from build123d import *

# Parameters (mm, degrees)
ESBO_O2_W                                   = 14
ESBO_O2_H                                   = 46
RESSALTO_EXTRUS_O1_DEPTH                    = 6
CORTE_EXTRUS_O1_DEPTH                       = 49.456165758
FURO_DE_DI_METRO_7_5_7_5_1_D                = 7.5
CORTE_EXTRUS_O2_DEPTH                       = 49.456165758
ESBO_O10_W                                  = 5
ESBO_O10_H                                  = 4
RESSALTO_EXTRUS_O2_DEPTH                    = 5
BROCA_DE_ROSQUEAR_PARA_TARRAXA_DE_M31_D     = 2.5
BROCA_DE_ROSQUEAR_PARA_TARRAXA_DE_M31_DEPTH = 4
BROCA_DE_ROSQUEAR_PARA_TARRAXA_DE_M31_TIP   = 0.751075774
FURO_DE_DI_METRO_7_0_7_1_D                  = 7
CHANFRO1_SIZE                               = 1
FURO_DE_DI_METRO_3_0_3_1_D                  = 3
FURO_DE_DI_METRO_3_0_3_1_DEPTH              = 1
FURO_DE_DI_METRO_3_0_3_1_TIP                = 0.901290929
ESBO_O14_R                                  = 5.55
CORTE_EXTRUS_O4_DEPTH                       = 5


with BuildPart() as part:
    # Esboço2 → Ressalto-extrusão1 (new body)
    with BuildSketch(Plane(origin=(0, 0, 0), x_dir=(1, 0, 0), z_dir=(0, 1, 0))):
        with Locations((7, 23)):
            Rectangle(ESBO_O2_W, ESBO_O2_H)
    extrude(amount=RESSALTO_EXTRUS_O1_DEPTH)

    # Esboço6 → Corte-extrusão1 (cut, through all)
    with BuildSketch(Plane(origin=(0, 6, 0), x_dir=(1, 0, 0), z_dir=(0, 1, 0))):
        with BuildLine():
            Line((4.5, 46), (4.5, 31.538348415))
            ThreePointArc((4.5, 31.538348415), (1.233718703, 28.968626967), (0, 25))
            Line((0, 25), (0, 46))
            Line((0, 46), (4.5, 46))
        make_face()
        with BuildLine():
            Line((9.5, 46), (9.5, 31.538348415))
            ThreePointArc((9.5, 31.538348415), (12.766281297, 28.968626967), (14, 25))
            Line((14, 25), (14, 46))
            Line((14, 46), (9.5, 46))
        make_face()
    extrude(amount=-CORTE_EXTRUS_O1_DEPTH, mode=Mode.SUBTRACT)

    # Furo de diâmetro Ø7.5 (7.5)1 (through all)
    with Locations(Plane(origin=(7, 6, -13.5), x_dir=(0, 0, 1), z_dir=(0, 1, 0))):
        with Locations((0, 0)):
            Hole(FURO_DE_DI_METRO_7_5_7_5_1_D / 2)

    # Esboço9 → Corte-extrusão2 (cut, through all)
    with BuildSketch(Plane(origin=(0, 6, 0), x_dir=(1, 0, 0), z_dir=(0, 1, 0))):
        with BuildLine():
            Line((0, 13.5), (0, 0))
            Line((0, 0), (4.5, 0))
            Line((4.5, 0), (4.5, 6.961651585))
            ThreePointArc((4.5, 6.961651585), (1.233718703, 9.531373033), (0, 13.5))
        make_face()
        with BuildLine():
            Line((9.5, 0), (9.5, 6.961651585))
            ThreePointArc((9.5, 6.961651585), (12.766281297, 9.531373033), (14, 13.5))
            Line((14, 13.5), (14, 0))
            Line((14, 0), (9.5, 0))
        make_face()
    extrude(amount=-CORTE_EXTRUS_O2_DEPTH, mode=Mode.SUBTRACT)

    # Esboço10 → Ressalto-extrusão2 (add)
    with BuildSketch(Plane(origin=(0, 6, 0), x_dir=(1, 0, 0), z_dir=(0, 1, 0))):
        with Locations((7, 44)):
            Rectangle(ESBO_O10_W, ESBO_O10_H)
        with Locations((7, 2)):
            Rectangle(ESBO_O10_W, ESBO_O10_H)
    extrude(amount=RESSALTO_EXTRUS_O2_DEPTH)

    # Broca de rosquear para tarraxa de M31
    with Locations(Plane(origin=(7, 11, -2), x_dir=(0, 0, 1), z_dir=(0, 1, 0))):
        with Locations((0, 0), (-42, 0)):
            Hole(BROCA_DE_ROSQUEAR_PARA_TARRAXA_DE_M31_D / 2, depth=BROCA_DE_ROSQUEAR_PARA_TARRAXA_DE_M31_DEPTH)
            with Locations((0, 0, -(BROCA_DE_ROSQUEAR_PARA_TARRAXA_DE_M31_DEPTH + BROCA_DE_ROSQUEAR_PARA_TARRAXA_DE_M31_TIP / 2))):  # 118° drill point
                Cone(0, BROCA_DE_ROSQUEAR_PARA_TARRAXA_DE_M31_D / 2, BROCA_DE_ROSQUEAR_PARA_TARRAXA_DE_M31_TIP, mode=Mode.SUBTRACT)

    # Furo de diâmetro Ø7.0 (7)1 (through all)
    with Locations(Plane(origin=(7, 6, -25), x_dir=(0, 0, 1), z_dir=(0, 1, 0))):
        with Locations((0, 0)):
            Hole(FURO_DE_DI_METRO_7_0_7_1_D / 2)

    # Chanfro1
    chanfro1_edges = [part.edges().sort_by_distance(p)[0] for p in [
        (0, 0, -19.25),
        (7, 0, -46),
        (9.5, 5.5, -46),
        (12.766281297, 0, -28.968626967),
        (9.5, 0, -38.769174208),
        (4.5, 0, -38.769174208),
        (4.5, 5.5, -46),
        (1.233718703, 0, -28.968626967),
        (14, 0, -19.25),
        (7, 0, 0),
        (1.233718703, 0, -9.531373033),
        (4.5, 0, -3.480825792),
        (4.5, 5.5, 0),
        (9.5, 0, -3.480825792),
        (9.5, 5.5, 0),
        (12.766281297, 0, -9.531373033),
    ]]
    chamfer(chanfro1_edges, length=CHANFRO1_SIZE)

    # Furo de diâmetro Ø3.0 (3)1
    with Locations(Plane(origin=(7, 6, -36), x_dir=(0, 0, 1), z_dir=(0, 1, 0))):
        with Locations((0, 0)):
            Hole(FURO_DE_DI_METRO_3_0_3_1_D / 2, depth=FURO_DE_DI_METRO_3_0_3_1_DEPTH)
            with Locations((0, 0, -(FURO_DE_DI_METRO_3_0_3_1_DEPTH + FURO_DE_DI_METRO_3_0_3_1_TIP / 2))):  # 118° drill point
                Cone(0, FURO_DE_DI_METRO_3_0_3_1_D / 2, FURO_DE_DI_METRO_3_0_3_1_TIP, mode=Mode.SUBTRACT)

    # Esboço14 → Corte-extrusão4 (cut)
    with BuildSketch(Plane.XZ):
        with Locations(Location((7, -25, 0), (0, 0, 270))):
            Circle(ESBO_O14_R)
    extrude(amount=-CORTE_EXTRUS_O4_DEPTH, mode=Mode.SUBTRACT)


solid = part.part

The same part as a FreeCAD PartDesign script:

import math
import FreeCAD as App
import Part
import Sketcher
from FreeCAD import Vector
Q = App.Units.Quantity


def edges_at(feature, points):
    """Names of the edges that pass closest to the given points."""
    edges = feature.Shape.Edges
    near = lambda p: min(range(len(edges)), key=lambda i: edges[i].distToShape(Part.Vertex(*p))[0])
    return sorted({f"Edge{near(p) + 1}" for p in points})


def add_polygon(sketch, points):
    """Adds a closed chain of lines whose ends are joined by coincident constraints."""
    first, n = sketch.GeometryCount, len(points)
    for a, b in zip(points, points[1:] + points[:1]):
        sketch.addGeometry(Part.LineSegment(App.Vector(*a, 0), App.Vector(*b, 0)), False)
    for i in range(n):
        sketch.addConstraint(Sketcher.Constraint("Coincident", first + i, 2, first + (i + 1) % n, 1))

doc = App.newDocument("Part")
body = doc.addObject("PartDesign::Body", "Body")

# Sketch on XZ plane
sketch1 = body.newObject("Sketcher::SketchObject", "Sketch")
sketch1.AttachmentSupport = (doc.getObject("XZ_Plane"), [""])
sketch1.MapMode = "FlatFace"
add_polygon(sketch1, [(0, -46), (0, 0), (14, 0), (14, -46)])  # lines 0-3
sketch1.addConstraint([
    Sketcher.Constraint("Vertical", 0),
    Sketcher.Constraint("Horizontal", 1),
    Sketcher.Constraint("Vertical", 2),
    Sketcher.Constraint("Horizontal", 3),
    Sketcher.Constraint("Coincident", 0, 2, -1, 1),
    Sketcher.Constraint("DistanceX", 1, 1, 1, 2, Q("14 mm")),
    Sketcher.Constraint("DistanceY", 0, 1, 0, 2, Q("46 mm")),
])
pad1 = body.newObject("PartDesign::Pad", "Pad")
pad1.Profile = sketch1
pad1.Length = 6
pad1.Reversed = True

# Sketch on XZ plane
sketch2 = body.newObject("Sketcher::SketchObject", "Sketch001")
sketch2.AttachmentSupport = (doc.getObject("XZ_Plane"), [""])
sketch2.MapMode = "FlatFace"
sketch2.AttachmentOffset = App.Placement(Vector(0, 0, -6), App.Rotation())
sketch2.addGeometry([
    Part.LineSegment(Vector(4.5, -31.5, 0), Vector(4.5, -46, 0)),  # 0
    Part.LineSegment(Vector(4.5, -46, 0), Vector(0, -46, 0)),  # 1
    Part.LineSegment(Vector(0, -46, 0), Vector(0, -25, 0)),  # 2
    Part.ArcOfCircle(Part.Circle(Vector(7, -25, 0), Vector(0, 0, 1), 7), math.radians(180), math.radians(249)),  # 3
    Part.LineSegment(Vector(9.5, -46, 0), Vector(9.5, -31.5, 0)),  # 4
    Part.ArcOfCircle(Part.Circle(Vector(7, -25, 0), Vector(0, 0, 1), 7), math.radians(-69), math.radians(0)),  # 5
    Part.LineSegment(Vector(14, -25, 0), Vector(14, -46, 0)),  # 6
    Part.LineSegment(Vector(14, -46, 0), Vector(9.5, -46, 0)),  # 7
], False)
sketch2.addConstraint([
    Sketcher.Constraint("Coincident", 0, 2, 1, 1),
    Sketcher.Constraint("Coincident", 1, 2, 2, 1),
    Sketcher.Constraint("Tangent", 2, 2, 3, 1),
    Sketcher.Constraint("Coincident", 3, 2, 0, 1),
    Sketcher.Constraint("Coincident", 4, 2, 5, 1),
    Sketcher.Constraint("Tangent", 5, 2, 6, 1),
    Sketcher.Constraint("Coincident", 6, 2, 7, 1),
    Sketcher.Constraint("Coincident", 7, 2, 4, 1),
    Sketcher.Constraint("Vertical", 0),
    Sketcher.Constraint("Horizontal", 1),
    Sketcher.Constraint("Vertical", 2),
    Sketcher.Constraint("Vertical", 4),
    Sketcher.Constraint("Vertical", 6),
    Sketcher.Constraint("Horizontal", 7),
    Sketcher.Constraint("Coincident", 5, 3, 3, 3),
    Sketcher.Constraint("Equal", 3, 5),
    Sketcher.Constraint("PointOnObject", 1, 2, -2),
    Sketcher.Constraint("Horizontal", 3, 2, 4, 2),
    Sketcher.Constraint("Horizontal", 1, 2, 6, 2),
    Sketcher.Constraint("Radius", 3, Q("7 mm")),
    Sketcher.Constraint("DistanceY", 2, 1, 2, 2, Q("21 mm")),
    Sketcher.Constraint("DistanceX", 1, 2, 1, 1, Q("4.5 mm")),
    Sketcher.Constraint("DistanceY", 3, 3, -1, 1, Q("25 mm")),
])
pocket1 = body.newObject("PartDesign::Pocket", "Pocket")
pocket1.Profile = sketch2
pocket1.Type = "ThroughAll"
pocket1.Reversed = True

# Sketch on XZ plane
sketch3 = body.newObject("Sketcher::SketchObject", "Sketch002")
sketch3.AttachmentSupport = (doc.getObject("XZ_Plane"), [""])
sketch3.MapMode = "FlatFace"
sketch3.AttachmentOffset = App.Placement(Vector(0, 0, -6), App.Rotation())
sketch3.addGeometry(Part.Circle(Vector(7, -13.5, 0), Vector(0, 0, 1), 3.8), False)
sketch3.addConstraint([
    Sketcher.Constraint("Diameter", 0, Q("7.5 mm")),
    Sketcher.Constraint("DistanceX", -1, 1, 0, 3, Q("7 mm")),
    Sketcher.Constraint("DistanceY", 0, 3, -1, 1, Q("13.5 mm")),
])
doc.recompute()
hole = body.newObject("PartDesign::Hole", "Hole")
hole.Profile = sketch3
hole.ThreadType = "None"
hole.Diameter = 7.5
hole.DepthType = "ThroughAll"
hole.Reversed = True

# Sketch on XZ plane
sketch4 = body.newObject("Sketcher::SketchObject", "Sketch003")
sketch4.AttachmentSupport = (doc.getObject("XZ_Plane"), [""])
sketch4.MapMode = "FlatFace"
sketch4.AttachmentOffset = App.Placement(Vector(0, 0, -6), App.Rotation())
sketch4.addGeometry([
    Part.LineSegment(Vector(0, -13.5, 0), Vector(0, 0, 0)),  # 0
    Part.LineSegment(Vector(0, 0, 0), Vector(4.5, 0, 0)),  # 1
    Part.LineSegment(Vector(4.5, 0, 0), Vector(4.5, -7, 0)),  # 2
    Part.ArcOfCircle(Part.Circle(Vector(7, -13.5, 0), Vector(0, 0, 1), 7), math.radians(111), math.radians(180)),  # 3
    Part.LineSegment(Vector(9.5, -7, 0), Vector(9.5, 0, 0)),  # 4
    Part.LineSegment(Vector(9.5, 0, 0), Vector(14, 0, 0)),  # 5
    Part.LineSegment(Vector(14, 0, 0), Vector(14, -13.5, 0)),  # 6
    Part.ArcOfCircle(Part.Circle(Vector(7, -13.5, 0), Vector(0, 0, 1), 7), math.radians(0), math.radians(69)),  # 7
], False)
sketch4.addConstraint([
    Sketcher.Constraint("Coincident", 0, 2, 1, 1),
    Sketcher.Constraint("Coincident", 1, 2, 2, 1),
    Sketcher.Constraint("Coincident", 2, 2, 3, 1),
    Sketcher.Constraint("Tangent", 3, 2, 0, 1),
    Sketcher.Constraint("Coincident", 4, 2, 5, 1),
    Sketcher.Constraint("Coincident", 5, 2, 6, 1),
    Sketcher.Constraint("Tangent", 6, 2, 7, 1),
    Sketcher.Constraint("Coincident", 7, 2, 4, 1),
    Sketcher.Constraint("Vertical", 0),
    Sketcher.Constraint("Horizontal", 1),
    Sketcher.Constraint("Vertical", 2),
    Sketcher.Constraint("Vertical", 4),
    Sketcher.Constraint("Horizontal", 5),
    Sketcher.Constraint("Vertical", 6),
    Sketcher.Constraint("Coincident", 0, 2, -1, 1),
    Sketcher.Constraint("Coincident", 7, 3, 3, 3),
    Sketcher.Constraint("Equal", 3, 7),
    Sketcher.Constraint("PointOnObject", 4, 2, -1),
    Sketcher.Constraint("Horizontal", 2, 2, 7, 2),
    Sketcher.Constraint("Radius", 3, Q("7 mm")),
    Sketcher.Constraint("DistanceX", 1, 1, 1, 2, Q("4.5 mm")),
    Sketcher.Constraint("DistanceY", 0, 1, 0, 2, Q("13.5 mm")),
])
pocket2 = body.newObject("PartDesign::Pocket", "Pocket001")
pocket2.Profile = sketch4
pocket2.Type = "ThroughAll"
pocket2.Reversed = True

# Sketch on XZ plane
sketch5 = body.newObject("Sketcher::SketchObject", "Sketch004")
sketch5.AttachmentSupport = (doc.getObject("XZ_Plane"), [""])
sketch5.MapMode = "FlatFace"
sketch5.AttachmentOffset = App.Placement(Vector(0, 0, -6), App.Rotation())
add_polygon(sketch5, [(4.5, -46), (4.5, -42), (9.5, -42), (9.5, -46)])  # lines 0-3
add_polygon(sketch5, [(4.5, -4), (4.5, 0), (9.5, 0), (9.5, -4)])  # lines 4-7
sketch5.addConstraint([
    Sketcher.Constraint("Vertical", 0),
    Sketcher.Constraint("Horizontal", 1),
    Sketcher.Constraint("Vertical", 2),
    Sketcher.Constraint("Horizontal", 3),
    Sketcher.Constraint("Vertical", 4),
    Sketcher.Constraint("Horizontal", 5),
    Sketcher.Constraint("Vertical", 6),
    Sketcher.Constraint("Horizontal", 7),
    Sketcher.Constraint("PointOnObject", 4, 2, -1),
    Sketcher.Constraint("Vertical", 3, 2, 4, 2),
    Sketcher.Constraint("Vertical", 2, 2, 5, 2),
    Sketcher.Constraint("Equal", 2, 4),
    Sketcher.Constraint("DistanceX", 1, 1, 1, 2, Q("5 mm")),
    Sketcher.Constraint("DistanceY", 0, 1, 0, 2, Q("4 mm")),
    Sketcher.Constraint("DistanceY", 0, 2, -1, 1, Q("42 mm")),
    Sketcher.Constraint("DistanceX", -1, 1, 0, 2, Q("4.5 mm")),
])
pad2 = body.newObject("PartDesign::Pad", "Pad001")
pad2.Profile = sketch5
pad2.Length = 5
pad2.Reversed = True

# Sketch on XZ plane
sketch6 = body.newObject("Sketcher::SketchObject", "Sketch005")
sketch6.AttachmentSupport = (doc.getObject("XZ_Plane"), [""])
sketch6.MapMode = "FlatFace"
sketch6.AttachmentOffset = App.Placement(Vector(0, 0, -11), App.Rotation())
sketch6.addGeometry([
    Part.Circle(Vector(7, -2, 0), Vector(0, 0, 1), 1.2),
    Part.Circle(Vector(7, -44, 0), Vector(0, 0, 1), 1.2),
], False)
sketch6.addConstraint([
    Sketcher.Constraint("Equal", 0, 1),
    Sketcher.Constraint("Vertical", 0, 3, 1, 3),
    Sketcher.Constraint("Diameter", 0, Q("2.5 mm")),
    Sketcher.Constraint("DistanceX", -1, 1, 0, 3, Q("7 mm")),
    Sketcher.Constraint("DistanceY", 0, 3, -1, 1, Q("2 mm")),
    Sketcher.Constraint("DistanceY", 1, 3, -1, 1, Q("44 mm")),
])
doc.recompute()
hole2 = body.newObject("PartDesign::Hole", "Hole001")
hole2.Profile = sketch6
hole2.ThreadType = "None"
hole2.Diameter = 2.5
hole2.DepthType = "Dimension"
hole2.Depth = 4
hole2.DrillPoint = "Angled"
hole2.DrillPointAngle = 118
hole2.Reversed = True

# Sketch on XZ plane
sketch7 = body.newObject("Sketcher::SketchObject", "Sketch006")
sketch7.AttachmentSupport = (doc.getObject("XZ_Plane"), [""])
sketch7.MapMode = "FlatFace"
sketch7.AttachmentOffset = App.Placement(Vector(0, 0, -6), App.Rotation())
sketch7.addGeometry(Part.Circle(Vector(7, -25, 0), Vector(0, 0, 1), 3.5), False)
sketch7.addConstraint([
    Sketcher.Constraint("Diameter", 0, Q("7 mm")),
    Sketcher.Constraint("DistanceX", -1, 1, 0, 3, Q("7 mm")),
    Sketcher.Constraint("DistanceY", 0, 3, -1, 1, Q("25 mm")),
])
doc.recompute()
hole3 = body.newObject("PartDesign::Hole", "Hole002")
hole3.Profile = sketch7
hole3.ThreadType = "None"
hole3.Diameter = 7
hole3.DepthType = "ThroughAll"
hole3.Reversed = True
doc.recompute()

chamfer = body.newObject("PartDesign::Chamfer", "Chamfer")
chamfer.Base = (hole3, edges_at(hole3, [
    (0, 0, -19.25),
    (7, 0, -46),
    (9.5, 5.5, -46),
    (12.766, 0, -28.969),
    (9.5, 0, -38.769),
    (4.5, 0, -38.769),
    (4.5, 5.5, -46),
    (1.234, 0, -28.969),
    (14, 0, -19.25),
    (7, 0, 0),
    (1.234, 0, -9.531),
    (4.5, 0, -3.481),
    (4.5, 5.5, 0),
    (9.5, 0, -3.481),
    (9.5, 5.5, 0),
    (12.766, 0, -9.531),
]))
chamfer.Size = 1

# Sketch on XZ plane
sketch8 = body.newObject("Sketcher::SketchObject", "Sketch007")
sketch8.AttachmentSupport = (doc.getObject("XZ_Plane"), [""])
sketch8.MapMode = "FlatFace"
sketch8.AttachmentOffset = App.Placement(Vector(0, 0, -6), App.Rotation())
sketch8.addGeometry(Part.Circle(Vector(7, -36, 0), Vector(0, 0, 1), 1.5), False)
sketch8.addConstraint([
    Sketcher.Constraint("Diameter", 0, Q("3 mm")),
    Sketcher.Constraint("DistanceX", -1, 1, 0, 3, Q("7 mm")),
    Sketcher.Constraint("DistanceY", 0, 3, -1, 1, Q("36 mm")),
])
doc.recompute()
hole4 = body.newObject("PartDesign::Hole", "Hole003")
hole4.Profile = sketch8
hole4.ThreadType = "None"
hole4.Diameter = 3
hole4.DepthType = "Dimension"
hole4.Depth = 1
hole4.DrillPoint = "Angled"
hole4.DrillPointAngle = 118
hole4.Reversed = True

# Sketch on XZ plane
sketch9 = body.newObject("Sketcher::SketchObject", "Sketch008")
sketch9.AttachmentSupport = (doc.getObject("XZ_Plane"), [""])
sketch9.MapMode = "FlatFace"
sketch9.addGeometry(Part.Circle(Vector(7, -25, 0), Vector(0, 0, 1), 6), False)
sketch9.addConstraint([
    Sketcher.Constraint("Diameter", 0, Q("11.1 mm")),
    Sketcher.Constraint("DistanceX", -1, 1, 0, 3, Q("7 mm")),
    Sketcher.Constraint("DistanceY", 0, 3, -1, 1, Q("25 mm")),
])
pocket3 = body.newObject("PartDesign::Pocket", "Pocket002")
pocket3.Profile = sketch9
pocket3.Length = 5

doc.recompute()
